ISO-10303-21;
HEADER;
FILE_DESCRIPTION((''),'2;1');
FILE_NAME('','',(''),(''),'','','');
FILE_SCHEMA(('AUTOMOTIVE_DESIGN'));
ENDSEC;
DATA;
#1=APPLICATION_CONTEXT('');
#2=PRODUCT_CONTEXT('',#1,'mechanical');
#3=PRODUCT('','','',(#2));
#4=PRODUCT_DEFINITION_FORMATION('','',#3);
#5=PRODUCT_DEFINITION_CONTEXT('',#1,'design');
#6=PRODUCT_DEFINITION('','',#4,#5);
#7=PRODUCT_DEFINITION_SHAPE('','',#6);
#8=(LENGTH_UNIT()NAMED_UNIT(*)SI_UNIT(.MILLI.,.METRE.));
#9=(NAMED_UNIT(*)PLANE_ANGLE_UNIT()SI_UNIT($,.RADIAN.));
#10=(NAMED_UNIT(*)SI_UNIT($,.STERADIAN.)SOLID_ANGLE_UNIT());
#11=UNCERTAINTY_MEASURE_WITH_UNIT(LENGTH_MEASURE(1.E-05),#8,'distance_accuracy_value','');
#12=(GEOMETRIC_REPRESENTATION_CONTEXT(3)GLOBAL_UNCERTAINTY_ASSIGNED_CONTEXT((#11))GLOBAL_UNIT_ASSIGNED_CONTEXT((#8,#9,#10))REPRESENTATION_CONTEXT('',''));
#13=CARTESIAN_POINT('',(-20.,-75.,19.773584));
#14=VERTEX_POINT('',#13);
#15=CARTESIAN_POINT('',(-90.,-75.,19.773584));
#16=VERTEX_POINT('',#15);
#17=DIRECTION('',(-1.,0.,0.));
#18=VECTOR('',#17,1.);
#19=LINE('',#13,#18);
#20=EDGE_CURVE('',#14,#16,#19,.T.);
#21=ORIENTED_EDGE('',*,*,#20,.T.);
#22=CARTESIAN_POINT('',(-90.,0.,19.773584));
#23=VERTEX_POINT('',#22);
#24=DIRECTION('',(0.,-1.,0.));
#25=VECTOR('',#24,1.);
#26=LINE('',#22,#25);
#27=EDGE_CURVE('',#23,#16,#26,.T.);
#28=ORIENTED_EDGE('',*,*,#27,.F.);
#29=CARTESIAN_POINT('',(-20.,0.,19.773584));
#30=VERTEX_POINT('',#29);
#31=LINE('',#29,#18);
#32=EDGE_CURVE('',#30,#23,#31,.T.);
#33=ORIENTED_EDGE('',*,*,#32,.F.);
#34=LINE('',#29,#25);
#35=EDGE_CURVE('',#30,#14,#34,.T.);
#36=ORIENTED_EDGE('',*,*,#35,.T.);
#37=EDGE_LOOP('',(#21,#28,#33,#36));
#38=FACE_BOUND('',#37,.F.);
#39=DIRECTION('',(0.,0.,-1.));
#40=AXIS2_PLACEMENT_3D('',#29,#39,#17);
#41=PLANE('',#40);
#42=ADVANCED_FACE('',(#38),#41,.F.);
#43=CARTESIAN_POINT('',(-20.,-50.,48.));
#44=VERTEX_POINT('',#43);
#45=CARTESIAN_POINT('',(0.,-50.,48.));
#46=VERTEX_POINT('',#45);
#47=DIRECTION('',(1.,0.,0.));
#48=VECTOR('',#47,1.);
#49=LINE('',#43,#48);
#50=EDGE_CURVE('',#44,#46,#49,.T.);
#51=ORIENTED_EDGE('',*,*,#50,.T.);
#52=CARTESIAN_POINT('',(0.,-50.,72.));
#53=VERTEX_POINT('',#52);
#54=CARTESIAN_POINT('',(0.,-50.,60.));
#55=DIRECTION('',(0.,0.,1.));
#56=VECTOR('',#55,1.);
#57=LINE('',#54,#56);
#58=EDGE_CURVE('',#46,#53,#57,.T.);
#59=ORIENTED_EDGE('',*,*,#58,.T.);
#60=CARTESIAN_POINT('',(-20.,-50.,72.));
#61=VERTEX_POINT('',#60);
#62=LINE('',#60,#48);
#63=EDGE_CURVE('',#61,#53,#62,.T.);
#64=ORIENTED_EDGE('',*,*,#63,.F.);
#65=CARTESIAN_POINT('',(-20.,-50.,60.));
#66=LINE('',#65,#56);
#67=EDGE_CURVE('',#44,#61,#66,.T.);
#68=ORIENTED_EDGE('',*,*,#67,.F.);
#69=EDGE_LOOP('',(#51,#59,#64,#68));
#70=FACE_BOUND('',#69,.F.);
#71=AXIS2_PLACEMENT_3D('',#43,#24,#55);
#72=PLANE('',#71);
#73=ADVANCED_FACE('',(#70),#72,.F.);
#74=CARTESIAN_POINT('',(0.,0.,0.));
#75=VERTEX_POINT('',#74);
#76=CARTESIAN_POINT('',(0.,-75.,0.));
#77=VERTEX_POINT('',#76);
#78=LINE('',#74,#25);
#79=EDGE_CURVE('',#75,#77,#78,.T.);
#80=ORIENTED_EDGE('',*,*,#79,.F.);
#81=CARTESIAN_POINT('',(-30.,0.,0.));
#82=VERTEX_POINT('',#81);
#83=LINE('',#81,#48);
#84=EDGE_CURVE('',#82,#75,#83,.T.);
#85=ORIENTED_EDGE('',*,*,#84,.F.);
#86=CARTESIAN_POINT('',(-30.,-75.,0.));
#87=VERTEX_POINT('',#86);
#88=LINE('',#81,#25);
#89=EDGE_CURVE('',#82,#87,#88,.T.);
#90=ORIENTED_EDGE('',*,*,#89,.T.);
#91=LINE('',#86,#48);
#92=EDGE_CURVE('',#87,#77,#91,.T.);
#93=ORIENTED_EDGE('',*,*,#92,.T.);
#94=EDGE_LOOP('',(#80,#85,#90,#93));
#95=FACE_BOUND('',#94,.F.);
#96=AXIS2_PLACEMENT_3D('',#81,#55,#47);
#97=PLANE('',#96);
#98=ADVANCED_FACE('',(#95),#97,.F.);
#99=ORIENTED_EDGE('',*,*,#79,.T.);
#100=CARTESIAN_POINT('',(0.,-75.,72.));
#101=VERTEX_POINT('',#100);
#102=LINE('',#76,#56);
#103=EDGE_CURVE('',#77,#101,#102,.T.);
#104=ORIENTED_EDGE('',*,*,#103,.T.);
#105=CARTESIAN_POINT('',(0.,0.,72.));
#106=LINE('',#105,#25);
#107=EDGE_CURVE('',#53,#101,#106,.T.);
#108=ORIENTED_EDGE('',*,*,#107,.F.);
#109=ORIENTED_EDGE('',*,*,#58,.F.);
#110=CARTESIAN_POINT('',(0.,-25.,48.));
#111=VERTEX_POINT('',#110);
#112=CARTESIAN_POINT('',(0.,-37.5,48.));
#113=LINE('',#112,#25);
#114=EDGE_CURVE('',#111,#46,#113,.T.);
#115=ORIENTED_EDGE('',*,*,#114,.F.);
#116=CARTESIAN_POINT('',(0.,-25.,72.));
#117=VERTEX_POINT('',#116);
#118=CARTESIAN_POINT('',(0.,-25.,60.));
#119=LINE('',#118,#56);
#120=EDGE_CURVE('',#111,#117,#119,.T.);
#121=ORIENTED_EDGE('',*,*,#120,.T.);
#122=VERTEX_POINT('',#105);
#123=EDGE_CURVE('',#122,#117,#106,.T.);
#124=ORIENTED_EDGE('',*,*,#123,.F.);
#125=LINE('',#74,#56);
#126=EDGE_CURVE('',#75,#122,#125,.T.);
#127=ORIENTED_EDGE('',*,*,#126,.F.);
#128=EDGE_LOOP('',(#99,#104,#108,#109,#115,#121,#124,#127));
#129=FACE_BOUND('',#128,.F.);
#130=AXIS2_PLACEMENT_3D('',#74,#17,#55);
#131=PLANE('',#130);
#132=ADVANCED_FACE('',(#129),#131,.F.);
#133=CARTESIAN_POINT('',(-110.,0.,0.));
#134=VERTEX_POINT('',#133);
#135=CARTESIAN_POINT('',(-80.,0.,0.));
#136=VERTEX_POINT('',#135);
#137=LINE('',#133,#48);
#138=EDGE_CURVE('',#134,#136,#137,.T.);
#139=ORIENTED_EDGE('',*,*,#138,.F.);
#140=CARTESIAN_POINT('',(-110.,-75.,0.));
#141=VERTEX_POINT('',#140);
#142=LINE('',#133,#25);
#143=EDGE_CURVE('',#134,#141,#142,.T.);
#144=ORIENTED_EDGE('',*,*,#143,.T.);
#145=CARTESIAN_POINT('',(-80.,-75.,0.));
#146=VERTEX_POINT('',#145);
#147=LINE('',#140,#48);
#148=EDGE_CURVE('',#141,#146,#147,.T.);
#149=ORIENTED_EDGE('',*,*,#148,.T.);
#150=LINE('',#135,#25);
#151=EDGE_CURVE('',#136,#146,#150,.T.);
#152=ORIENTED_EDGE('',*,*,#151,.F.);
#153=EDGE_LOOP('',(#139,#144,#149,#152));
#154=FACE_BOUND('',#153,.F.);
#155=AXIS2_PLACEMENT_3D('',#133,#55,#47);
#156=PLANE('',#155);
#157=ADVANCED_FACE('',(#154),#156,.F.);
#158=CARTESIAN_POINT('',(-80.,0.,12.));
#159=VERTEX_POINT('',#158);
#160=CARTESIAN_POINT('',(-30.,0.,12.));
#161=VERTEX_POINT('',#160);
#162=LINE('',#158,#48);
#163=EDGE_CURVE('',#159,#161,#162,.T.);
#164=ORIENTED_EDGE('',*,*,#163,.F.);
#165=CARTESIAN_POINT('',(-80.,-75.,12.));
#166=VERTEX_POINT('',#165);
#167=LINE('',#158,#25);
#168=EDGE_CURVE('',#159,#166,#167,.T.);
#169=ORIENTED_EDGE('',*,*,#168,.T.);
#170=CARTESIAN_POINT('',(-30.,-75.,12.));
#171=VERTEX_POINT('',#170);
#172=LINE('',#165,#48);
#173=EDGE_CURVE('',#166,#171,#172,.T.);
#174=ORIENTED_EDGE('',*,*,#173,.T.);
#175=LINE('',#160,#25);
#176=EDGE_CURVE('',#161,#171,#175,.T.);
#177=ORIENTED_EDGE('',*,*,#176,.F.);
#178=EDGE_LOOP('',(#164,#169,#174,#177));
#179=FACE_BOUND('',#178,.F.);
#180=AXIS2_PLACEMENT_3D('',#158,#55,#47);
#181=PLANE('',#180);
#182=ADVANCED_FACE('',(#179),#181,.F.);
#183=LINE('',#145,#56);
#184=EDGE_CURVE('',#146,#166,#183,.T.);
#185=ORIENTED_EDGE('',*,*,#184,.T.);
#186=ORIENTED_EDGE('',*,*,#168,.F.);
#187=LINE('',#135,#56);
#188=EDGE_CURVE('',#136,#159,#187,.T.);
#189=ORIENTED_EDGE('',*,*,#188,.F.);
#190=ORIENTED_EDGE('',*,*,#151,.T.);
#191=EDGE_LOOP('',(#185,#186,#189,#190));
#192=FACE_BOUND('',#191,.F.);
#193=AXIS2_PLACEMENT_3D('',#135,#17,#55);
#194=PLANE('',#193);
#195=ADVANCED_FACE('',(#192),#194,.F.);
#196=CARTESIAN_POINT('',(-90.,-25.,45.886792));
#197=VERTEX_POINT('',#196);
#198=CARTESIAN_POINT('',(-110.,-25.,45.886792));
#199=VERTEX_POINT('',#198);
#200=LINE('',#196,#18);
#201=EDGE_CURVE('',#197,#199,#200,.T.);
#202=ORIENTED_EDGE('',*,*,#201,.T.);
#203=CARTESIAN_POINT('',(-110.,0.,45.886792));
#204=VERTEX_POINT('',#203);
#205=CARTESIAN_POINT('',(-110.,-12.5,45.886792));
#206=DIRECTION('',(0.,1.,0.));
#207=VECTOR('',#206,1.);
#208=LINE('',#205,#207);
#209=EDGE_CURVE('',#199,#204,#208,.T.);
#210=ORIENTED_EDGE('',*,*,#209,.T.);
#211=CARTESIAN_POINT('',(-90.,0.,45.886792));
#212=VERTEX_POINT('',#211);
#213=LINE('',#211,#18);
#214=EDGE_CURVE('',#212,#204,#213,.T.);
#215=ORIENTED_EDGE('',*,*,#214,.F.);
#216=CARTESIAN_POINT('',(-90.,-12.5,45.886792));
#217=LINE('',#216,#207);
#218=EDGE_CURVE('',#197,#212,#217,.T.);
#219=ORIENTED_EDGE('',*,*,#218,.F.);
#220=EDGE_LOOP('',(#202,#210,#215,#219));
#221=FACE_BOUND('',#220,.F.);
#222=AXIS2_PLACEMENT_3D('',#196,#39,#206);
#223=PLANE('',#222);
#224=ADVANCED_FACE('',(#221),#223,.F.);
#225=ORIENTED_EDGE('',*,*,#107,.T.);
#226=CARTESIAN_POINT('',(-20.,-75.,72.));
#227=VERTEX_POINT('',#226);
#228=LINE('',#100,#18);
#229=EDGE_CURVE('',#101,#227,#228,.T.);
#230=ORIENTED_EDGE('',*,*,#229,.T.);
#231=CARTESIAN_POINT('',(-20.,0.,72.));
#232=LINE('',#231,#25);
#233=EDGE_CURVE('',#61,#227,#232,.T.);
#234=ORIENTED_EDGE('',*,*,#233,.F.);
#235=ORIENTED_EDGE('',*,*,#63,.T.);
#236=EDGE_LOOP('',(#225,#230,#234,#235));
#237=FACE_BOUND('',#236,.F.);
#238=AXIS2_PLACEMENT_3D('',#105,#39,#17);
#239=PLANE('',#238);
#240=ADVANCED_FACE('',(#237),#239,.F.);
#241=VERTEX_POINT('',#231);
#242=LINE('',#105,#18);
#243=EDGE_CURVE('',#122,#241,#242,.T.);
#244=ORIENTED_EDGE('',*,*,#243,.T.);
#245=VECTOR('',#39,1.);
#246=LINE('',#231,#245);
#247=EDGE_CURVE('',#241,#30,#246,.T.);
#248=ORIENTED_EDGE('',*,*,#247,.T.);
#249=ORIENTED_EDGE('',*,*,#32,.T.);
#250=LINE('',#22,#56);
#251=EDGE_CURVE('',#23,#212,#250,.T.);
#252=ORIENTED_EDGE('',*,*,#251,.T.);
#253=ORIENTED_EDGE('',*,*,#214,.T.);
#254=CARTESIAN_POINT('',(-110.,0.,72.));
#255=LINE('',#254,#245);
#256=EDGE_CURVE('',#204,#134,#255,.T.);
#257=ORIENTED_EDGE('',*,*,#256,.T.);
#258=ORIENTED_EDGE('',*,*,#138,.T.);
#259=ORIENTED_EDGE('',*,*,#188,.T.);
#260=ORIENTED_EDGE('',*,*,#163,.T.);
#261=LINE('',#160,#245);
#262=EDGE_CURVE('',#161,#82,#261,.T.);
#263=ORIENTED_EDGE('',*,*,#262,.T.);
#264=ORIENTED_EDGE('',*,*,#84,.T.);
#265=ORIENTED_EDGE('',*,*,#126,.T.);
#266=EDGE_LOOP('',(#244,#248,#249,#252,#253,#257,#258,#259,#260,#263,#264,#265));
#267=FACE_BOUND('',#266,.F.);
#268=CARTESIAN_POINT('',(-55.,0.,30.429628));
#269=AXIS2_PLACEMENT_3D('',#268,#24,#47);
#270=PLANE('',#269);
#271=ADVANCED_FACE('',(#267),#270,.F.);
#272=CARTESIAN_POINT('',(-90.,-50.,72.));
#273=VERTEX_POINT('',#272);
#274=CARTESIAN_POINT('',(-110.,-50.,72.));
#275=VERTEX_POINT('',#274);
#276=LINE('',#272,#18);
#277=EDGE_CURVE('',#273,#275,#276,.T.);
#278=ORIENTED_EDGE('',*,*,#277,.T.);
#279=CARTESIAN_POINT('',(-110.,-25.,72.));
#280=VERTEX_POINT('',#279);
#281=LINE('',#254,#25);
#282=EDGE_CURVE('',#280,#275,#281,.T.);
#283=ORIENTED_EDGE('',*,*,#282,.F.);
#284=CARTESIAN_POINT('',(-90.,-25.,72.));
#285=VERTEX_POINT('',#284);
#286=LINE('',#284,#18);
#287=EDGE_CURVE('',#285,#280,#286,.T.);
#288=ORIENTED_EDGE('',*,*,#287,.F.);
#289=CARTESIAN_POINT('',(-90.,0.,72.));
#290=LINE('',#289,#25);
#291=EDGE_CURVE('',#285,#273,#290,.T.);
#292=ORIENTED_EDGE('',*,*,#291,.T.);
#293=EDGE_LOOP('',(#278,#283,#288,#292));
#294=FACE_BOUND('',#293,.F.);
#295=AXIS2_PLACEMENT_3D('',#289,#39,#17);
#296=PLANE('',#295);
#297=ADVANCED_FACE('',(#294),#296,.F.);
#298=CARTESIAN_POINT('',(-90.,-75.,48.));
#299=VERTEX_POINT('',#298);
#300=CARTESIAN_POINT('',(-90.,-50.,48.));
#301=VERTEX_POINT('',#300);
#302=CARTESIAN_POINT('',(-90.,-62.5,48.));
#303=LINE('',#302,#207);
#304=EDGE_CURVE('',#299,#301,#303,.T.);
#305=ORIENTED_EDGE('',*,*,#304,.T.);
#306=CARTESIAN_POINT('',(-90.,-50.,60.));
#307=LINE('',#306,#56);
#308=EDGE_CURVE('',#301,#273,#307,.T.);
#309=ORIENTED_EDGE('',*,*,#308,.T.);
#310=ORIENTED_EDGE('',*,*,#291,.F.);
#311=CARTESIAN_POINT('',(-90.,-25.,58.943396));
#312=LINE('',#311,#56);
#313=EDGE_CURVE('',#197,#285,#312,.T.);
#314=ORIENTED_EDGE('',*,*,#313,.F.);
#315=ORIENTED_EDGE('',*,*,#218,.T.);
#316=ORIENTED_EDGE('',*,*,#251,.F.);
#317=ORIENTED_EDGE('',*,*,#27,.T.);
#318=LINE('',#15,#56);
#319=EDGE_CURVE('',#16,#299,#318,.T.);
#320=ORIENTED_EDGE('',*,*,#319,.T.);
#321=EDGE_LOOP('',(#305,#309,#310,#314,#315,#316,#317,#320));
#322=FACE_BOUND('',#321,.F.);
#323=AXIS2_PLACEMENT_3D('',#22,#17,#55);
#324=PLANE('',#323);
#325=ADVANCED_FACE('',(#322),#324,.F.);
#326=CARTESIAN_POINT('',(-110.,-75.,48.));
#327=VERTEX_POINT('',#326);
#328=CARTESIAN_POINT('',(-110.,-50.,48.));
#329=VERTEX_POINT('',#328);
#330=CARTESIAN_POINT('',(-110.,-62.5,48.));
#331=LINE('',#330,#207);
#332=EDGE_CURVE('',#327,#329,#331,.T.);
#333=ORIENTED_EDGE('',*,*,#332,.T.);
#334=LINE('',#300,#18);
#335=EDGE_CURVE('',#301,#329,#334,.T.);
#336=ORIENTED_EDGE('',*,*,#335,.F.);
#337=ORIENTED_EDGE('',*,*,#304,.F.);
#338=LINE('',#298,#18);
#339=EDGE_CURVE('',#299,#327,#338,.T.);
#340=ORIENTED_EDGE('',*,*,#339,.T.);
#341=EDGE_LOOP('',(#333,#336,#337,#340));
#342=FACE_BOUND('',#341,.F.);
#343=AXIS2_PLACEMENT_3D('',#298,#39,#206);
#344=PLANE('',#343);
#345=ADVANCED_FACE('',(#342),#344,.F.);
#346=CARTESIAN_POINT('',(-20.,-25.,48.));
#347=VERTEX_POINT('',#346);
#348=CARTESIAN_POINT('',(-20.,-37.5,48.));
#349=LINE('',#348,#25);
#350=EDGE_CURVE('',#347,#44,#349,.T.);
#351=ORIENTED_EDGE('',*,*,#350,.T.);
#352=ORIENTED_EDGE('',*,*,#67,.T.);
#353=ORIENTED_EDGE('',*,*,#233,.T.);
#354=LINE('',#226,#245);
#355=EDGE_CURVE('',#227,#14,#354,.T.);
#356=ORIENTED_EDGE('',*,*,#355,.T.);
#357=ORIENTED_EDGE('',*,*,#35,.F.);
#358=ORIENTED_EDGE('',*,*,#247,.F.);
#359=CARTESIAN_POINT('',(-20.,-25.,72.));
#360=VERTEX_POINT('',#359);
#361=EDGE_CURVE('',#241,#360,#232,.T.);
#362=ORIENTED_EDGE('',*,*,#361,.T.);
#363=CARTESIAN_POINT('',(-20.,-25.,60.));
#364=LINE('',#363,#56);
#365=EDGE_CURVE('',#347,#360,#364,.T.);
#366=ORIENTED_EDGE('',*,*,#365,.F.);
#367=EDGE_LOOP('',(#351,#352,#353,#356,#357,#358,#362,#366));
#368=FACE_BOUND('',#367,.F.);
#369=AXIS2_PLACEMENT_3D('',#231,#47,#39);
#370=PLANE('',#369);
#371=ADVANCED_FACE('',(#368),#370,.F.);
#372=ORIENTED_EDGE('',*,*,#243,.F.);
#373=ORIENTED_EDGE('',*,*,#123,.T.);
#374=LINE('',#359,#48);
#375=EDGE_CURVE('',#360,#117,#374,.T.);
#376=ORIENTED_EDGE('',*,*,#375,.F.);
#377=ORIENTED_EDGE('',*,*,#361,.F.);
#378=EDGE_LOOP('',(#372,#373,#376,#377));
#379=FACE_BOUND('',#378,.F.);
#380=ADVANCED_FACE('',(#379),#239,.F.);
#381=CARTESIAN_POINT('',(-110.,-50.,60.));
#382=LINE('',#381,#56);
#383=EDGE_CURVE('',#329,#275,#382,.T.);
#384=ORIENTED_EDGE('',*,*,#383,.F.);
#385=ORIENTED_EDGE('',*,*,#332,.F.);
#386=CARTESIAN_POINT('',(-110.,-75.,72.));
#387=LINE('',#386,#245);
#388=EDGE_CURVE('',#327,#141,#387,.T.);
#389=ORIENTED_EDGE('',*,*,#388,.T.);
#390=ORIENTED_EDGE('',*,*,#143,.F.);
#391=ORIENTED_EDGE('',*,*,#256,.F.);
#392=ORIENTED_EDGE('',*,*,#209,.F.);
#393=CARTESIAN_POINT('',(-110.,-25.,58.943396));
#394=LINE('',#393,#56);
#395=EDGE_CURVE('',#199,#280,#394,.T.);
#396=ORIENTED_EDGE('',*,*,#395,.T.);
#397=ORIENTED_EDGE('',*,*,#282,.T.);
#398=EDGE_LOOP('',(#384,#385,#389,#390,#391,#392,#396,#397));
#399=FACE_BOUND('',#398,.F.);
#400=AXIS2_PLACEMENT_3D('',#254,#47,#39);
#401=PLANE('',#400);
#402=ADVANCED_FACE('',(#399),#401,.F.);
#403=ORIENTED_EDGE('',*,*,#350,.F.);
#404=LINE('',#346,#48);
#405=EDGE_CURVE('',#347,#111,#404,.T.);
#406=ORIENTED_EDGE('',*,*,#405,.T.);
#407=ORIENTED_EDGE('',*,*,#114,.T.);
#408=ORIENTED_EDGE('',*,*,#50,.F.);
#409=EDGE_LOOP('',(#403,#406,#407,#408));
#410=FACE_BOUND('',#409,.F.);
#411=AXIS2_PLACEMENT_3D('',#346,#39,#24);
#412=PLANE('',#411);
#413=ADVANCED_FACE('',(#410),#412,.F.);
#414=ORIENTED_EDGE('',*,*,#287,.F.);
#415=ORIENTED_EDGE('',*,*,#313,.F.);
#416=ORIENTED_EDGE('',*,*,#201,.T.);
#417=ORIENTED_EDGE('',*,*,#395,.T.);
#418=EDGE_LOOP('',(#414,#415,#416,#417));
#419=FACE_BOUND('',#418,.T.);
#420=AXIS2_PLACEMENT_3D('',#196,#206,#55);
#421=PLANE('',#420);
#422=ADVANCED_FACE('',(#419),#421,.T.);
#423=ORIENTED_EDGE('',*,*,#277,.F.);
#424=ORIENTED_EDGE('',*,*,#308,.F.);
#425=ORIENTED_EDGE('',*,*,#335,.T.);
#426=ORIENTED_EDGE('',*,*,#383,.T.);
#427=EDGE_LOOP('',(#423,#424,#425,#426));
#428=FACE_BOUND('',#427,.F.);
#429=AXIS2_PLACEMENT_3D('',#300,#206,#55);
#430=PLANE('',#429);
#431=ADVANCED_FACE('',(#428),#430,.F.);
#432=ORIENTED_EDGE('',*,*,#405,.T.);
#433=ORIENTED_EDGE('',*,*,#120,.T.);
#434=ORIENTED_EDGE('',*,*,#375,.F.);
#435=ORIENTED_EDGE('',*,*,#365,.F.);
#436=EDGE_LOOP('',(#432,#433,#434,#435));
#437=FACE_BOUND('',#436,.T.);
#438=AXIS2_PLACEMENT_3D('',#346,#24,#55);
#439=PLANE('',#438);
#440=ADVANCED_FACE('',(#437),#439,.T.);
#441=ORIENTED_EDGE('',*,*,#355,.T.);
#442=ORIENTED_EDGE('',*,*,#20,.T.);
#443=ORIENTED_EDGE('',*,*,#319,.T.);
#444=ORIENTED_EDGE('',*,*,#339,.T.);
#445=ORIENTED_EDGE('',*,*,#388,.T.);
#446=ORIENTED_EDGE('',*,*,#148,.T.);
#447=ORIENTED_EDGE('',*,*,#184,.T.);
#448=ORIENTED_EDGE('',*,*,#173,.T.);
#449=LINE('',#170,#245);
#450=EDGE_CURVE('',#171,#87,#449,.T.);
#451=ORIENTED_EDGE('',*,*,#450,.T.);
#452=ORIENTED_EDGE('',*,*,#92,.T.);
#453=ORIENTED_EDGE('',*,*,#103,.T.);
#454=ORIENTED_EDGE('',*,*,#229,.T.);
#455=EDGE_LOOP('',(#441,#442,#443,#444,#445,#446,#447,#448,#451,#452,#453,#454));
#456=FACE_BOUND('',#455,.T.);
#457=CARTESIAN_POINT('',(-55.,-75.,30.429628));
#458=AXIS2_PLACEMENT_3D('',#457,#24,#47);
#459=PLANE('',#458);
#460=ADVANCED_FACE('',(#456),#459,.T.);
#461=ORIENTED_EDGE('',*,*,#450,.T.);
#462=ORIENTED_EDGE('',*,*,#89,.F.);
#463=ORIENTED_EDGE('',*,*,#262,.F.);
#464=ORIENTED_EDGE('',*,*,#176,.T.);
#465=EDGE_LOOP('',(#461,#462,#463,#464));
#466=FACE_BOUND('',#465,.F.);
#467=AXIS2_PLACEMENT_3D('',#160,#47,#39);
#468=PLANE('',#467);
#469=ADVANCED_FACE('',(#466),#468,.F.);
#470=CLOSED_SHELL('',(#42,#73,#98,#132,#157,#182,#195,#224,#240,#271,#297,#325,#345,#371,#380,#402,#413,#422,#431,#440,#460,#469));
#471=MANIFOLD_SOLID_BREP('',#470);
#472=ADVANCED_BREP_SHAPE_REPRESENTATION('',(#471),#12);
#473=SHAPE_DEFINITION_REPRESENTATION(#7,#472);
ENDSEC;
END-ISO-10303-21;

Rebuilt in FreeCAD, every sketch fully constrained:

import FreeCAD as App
import Part
import Sketcher
Q = App.Units.Quantity


def add_polygon(sketch, points):
    """Adds a closed chain of lines whose ends are joined by coincident constraints."""
    first, n = sketch.GeometryCount, len(points)
    for a, b in zip(points, points[1:] + points[:1]):
        sketch.addGeometry(Part.LineSegment(App.Vector(*a, 0), App.Vector(*b, 0)), False)
    for i in range(n):
        sketch.addConstraint(Sketcher.Constraint("Coincident", first + i, 2, first + (i + 1) % n, 1))

doc = App.newDocument("Part")
body = doc.addObject("PartDesign::Body", "Body")

# Sketch on XZ plane
sketch1 = body.newObject("Sketcher::SketchObject", "Sketch")
sketch1.AttachmentSupport = (doc.getObject("XZ_Plane"), [""])
sketch1.MapMode = "FlatFace"
add_polygon(sketch1, [(-30, 0), (0, 0), (0, 72), (-20, 72), (-20, 19.773584), (-90, 19.773584), (-90, 72), (-110, 72), (-110, 0), (-80, 0), (-80, 12), (-30, 12)])  # lines 0-11
sketch1.addConstraint([
    Sketcher.Constraint("Horizontal", 0),
    Sketcher.Constraint("Vertical", 1),
    Sketcher.Constraint("Horizontal", 2),
    Sketcher.Constraint("Vertical", 3),
    Sketcher.Constraint("Horizontal", 4),
    Sketcher.Constraint("Vertical", 5),
    Sketcher.Constraint("Horizontal", 6),
    Sketcher.Constraint("Vertical", 7),
    Sketcher.Constraint("Horizontal", 8),
    Sketcher.Constraint("Vertical", 9),
    Sketcher.Constraint("Horizontal", 10),
    Sketcher.Constraint("Vertical", 11),
    Sketcher.Constraint("Coincident", 0, 2, -1, 1),
    Sketcher.Constraint("PointOnObject", 7, 2, -1),
    Sketcher.Constraint("Horizontal", 2, 2, 5, 2),
    Sketcher.Constraint("Equal", 2, 6),
    Sketcher.Constraint("Equal", 0, 8),
    Sketcher.Constraint("DistanceX", 0, 1, 0, 2, Q("30 mm")),
    Sketcher.Constraint("DistanceX", 2, 2, 2, 1, Q("20 mm")),
    Sketcher.Constraint("DistanceX", 4, 2, 4, 1, Q("70 mm")),
    Sketcher.Constraint("DistanceY", 1, 1, 1, 2, Q("72 mm")),
    Sketcher.Constraint("DistanceY", 9, 1, 9, 2, Q("12 mm")),
    Sketcher.Constraint("DistanceY", 3, 2, 3, 1, Q("52.226416 mm")),
])
pad1 = body.newObject("PartDesign::Pad", "Pad")
pad1.Profile = sketch1
pad1.Length = 75

# Sketch on YZ plane
sketch2 = body.newObject("Sketcher::SketchObject", "Sketch001")
sketch2.AttachmentSupport = (doc.getObject("YZ_Plane"), [""])
sketch2.MapMode = "FlatFace"
sketch2.AttachmentOffset = App.Placement(App.Vector(0, 0, -90), App.Rotation())
add_polygon(sketch2, [(-75, 72), (-75, 48), (-50, 48), (-50, 72)])  # lines 0-3
add_polygon(sketch2, [(-25, 72), (-25, 45.886792), (0, 45.886792), (0, 72)])  # lines 4-7
sketch2.addConstraint([
    Sketcher.Constraint("Vertical", 0),
    Sketcher.Constraint("Horizontal", 1),
    Sketcher.Constraint("Vertical", 2),
    Sketcher.Constraint("Horizontal", 3),
    Sketcher.Constraint("Vertical", 4),
    Sketcher.Constraint("Horizontal", 5),
    Sketcher.Constraint("Vertical", 6),
    Sketcher.Constraint("Horizontal", 7),
    Sketcher.Constraint("PointOnObject", 5, 2, -2),
    Sketcher.Constraint("Horizontal", 3, 2, 6, 2),
    Sketcher.Constraint("Equal", 3, 5),
    Sketcher.Constraint("DistanceX", 1, 1, 1, 2, Q("25 mm")),
    Sketcher.Constraint("DistanceY", 0, 2, 0, 1, Q("24 mm")),
    Sketcher.Constraint("DistanceX", 0, 2, -1, 1, Q("75 mm")),
    Sketcher.Constraint("DistanceY", -1, 1, 0, 2, Q("48 mm")),
    Sketcher.Constraint("DistanceY", 4, 2, 4, 1, Q("26.113208 mm")),
])
pocket1 = body.newObject("PartDesign::Pocket", "Pocket")
pocket1.Profile = sketch2
pocket1.Length = 20

# Sketch on YZ plane
sketch3 = body.newObject("Sketcher::SketchObject", "Sketch002")
sketch3.AttachmentSupport = (doc.getObject("YZ_Plane"), [""])
sketch3.MapMode = "FlatFace"
sketch3.AttachmentOffset = App.Placement(App.Vector(0, 0, -20), App.Rotation())
add_polygon(sketch3, [(-25, 72), (-25, 48), (-50, 48), (-50, 72)])  # lines 0-3
sketch3.addConstraint([
    Sketcher.Constraint("Vertical", 0),
    Sketcher.Constraint("Horizontal", 1),
    Sketcher.Constraint("Vertical", 2),
    Sketcher.Constraint("Horizontal", 3),
    Sketcher.Constraint("DistanceX", 1, 2, 1, 1, Q("25 mm")),
    Sketcher.Constraint("DistanceY", 0, 2, 0, 1, Q("24 mm")),
    Sketcher.Constraint("DistanceX", 0, 2, -1, 1, Q("25 mm")),
    Sketcher.Constraint("DistanceY", -1, 1, 0, 2, Q("48 mm")),
])
pocket2 = body.newObject("PartDesign::Pocket", "Pocket001")
pocket2.Profile = sketch3
pocket2.Length = 20
pocket2.Reversed = True

doc.recompute()
